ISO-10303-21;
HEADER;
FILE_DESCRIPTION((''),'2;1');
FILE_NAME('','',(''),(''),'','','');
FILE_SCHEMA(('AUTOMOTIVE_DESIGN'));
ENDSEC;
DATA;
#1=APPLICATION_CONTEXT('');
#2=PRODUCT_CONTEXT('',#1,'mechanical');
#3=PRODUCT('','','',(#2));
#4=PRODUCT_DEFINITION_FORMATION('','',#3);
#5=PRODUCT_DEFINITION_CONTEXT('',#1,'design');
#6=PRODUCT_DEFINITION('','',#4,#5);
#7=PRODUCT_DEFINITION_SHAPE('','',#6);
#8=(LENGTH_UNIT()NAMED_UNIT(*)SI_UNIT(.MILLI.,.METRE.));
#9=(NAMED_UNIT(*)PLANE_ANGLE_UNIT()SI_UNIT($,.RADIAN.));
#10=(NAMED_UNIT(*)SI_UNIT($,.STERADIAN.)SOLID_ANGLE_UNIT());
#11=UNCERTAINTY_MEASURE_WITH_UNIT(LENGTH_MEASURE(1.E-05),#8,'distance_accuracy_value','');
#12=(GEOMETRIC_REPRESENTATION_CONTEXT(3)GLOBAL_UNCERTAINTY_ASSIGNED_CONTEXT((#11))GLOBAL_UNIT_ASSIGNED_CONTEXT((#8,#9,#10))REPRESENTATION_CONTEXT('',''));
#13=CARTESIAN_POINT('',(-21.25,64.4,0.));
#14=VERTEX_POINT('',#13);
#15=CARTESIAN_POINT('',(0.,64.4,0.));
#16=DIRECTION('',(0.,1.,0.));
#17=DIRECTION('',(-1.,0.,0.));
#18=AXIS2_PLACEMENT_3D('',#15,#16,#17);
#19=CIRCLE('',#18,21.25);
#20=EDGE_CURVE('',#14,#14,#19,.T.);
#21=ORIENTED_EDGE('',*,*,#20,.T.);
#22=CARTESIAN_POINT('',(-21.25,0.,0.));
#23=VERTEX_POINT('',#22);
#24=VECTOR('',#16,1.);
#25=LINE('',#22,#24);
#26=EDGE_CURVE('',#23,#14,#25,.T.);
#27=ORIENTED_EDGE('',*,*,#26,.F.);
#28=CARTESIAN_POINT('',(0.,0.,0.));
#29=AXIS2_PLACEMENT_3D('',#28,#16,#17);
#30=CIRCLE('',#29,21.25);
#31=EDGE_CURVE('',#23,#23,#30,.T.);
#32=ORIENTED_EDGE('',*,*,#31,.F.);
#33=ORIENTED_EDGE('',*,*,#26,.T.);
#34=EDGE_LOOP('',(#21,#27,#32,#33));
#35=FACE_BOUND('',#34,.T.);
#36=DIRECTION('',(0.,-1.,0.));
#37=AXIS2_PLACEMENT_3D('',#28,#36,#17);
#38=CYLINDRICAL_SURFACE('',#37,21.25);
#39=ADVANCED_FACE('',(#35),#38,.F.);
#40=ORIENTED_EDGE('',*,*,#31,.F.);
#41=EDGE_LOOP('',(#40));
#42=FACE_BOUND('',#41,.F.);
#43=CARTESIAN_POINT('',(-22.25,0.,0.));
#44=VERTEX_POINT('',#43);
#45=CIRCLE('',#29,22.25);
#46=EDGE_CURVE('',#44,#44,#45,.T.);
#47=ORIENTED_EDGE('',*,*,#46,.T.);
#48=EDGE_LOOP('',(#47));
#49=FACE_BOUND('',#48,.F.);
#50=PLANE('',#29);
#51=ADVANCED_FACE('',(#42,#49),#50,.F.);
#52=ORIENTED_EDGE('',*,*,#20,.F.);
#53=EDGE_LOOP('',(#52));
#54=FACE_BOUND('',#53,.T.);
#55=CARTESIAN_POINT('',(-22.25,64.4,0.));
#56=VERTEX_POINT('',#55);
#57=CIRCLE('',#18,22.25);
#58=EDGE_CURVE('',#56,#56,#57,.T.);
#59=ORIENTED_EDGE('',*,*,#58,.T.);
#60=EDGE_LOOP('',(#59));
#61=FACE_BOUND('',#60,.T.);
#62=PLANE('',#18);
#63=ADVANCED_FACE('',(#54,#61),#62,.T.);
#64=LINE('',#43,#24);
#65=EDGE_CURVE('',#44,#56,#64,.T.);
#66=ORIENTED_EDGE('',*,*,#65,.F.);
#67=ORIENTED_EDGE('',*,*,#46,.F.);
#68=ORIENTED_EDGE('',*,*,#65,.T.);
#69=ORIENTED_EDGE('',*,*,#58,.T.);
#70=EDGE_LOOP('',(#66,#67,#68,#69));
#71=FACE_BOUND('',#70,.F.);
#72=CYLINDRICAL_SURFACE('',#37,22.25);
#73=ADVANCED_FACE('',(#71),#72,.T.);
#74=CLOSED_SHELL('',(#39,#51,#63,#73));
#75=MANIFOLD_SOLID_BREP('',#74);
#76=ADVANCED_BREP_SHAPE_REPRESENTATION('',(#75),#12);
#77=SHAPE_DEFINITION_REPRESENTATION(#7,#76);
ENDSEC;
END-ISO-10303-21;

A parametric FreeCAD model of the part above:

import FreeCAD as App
import Part
import Sketcher

doc = App.newDocument("Part")
body = doc.addObject("PartDesign::Body", "Body")

sketch1 = body.newObject("Sketcher::SketchObject", "Sketch")
sketch1.AttachmentSupport = (doc.getObject("XZ_Plane"), [""])
sketch1.MapMode = "FlatFace"
sketch1.addGeometry([
    Part.Circle(App.Vector(0, 0, 0), App.Vector(0, 0, 1), 22),
    Part.Circle(App.Vector(0, 0, 0), App.Vector(0, 0, 1), 21),
], False)
sketch1.addConstraint([
    Sketcher.Constraint("Coincident", 0, 3, -1, 1),
    Sketcher.Constraint("Coincident", 1, 3, -1, 1),
    Sketcher.Constraint("Diameter", 0, 44.5),
    Sketcher.Constraint("Diameter", 1, 42.5),
])
pad1 = body.newObject("PartDesign::Pad", "Pad")
pad1.Profile = sketch1
pad1.Length = 64.4
pad1.Reversed = True

doc.recompute()
